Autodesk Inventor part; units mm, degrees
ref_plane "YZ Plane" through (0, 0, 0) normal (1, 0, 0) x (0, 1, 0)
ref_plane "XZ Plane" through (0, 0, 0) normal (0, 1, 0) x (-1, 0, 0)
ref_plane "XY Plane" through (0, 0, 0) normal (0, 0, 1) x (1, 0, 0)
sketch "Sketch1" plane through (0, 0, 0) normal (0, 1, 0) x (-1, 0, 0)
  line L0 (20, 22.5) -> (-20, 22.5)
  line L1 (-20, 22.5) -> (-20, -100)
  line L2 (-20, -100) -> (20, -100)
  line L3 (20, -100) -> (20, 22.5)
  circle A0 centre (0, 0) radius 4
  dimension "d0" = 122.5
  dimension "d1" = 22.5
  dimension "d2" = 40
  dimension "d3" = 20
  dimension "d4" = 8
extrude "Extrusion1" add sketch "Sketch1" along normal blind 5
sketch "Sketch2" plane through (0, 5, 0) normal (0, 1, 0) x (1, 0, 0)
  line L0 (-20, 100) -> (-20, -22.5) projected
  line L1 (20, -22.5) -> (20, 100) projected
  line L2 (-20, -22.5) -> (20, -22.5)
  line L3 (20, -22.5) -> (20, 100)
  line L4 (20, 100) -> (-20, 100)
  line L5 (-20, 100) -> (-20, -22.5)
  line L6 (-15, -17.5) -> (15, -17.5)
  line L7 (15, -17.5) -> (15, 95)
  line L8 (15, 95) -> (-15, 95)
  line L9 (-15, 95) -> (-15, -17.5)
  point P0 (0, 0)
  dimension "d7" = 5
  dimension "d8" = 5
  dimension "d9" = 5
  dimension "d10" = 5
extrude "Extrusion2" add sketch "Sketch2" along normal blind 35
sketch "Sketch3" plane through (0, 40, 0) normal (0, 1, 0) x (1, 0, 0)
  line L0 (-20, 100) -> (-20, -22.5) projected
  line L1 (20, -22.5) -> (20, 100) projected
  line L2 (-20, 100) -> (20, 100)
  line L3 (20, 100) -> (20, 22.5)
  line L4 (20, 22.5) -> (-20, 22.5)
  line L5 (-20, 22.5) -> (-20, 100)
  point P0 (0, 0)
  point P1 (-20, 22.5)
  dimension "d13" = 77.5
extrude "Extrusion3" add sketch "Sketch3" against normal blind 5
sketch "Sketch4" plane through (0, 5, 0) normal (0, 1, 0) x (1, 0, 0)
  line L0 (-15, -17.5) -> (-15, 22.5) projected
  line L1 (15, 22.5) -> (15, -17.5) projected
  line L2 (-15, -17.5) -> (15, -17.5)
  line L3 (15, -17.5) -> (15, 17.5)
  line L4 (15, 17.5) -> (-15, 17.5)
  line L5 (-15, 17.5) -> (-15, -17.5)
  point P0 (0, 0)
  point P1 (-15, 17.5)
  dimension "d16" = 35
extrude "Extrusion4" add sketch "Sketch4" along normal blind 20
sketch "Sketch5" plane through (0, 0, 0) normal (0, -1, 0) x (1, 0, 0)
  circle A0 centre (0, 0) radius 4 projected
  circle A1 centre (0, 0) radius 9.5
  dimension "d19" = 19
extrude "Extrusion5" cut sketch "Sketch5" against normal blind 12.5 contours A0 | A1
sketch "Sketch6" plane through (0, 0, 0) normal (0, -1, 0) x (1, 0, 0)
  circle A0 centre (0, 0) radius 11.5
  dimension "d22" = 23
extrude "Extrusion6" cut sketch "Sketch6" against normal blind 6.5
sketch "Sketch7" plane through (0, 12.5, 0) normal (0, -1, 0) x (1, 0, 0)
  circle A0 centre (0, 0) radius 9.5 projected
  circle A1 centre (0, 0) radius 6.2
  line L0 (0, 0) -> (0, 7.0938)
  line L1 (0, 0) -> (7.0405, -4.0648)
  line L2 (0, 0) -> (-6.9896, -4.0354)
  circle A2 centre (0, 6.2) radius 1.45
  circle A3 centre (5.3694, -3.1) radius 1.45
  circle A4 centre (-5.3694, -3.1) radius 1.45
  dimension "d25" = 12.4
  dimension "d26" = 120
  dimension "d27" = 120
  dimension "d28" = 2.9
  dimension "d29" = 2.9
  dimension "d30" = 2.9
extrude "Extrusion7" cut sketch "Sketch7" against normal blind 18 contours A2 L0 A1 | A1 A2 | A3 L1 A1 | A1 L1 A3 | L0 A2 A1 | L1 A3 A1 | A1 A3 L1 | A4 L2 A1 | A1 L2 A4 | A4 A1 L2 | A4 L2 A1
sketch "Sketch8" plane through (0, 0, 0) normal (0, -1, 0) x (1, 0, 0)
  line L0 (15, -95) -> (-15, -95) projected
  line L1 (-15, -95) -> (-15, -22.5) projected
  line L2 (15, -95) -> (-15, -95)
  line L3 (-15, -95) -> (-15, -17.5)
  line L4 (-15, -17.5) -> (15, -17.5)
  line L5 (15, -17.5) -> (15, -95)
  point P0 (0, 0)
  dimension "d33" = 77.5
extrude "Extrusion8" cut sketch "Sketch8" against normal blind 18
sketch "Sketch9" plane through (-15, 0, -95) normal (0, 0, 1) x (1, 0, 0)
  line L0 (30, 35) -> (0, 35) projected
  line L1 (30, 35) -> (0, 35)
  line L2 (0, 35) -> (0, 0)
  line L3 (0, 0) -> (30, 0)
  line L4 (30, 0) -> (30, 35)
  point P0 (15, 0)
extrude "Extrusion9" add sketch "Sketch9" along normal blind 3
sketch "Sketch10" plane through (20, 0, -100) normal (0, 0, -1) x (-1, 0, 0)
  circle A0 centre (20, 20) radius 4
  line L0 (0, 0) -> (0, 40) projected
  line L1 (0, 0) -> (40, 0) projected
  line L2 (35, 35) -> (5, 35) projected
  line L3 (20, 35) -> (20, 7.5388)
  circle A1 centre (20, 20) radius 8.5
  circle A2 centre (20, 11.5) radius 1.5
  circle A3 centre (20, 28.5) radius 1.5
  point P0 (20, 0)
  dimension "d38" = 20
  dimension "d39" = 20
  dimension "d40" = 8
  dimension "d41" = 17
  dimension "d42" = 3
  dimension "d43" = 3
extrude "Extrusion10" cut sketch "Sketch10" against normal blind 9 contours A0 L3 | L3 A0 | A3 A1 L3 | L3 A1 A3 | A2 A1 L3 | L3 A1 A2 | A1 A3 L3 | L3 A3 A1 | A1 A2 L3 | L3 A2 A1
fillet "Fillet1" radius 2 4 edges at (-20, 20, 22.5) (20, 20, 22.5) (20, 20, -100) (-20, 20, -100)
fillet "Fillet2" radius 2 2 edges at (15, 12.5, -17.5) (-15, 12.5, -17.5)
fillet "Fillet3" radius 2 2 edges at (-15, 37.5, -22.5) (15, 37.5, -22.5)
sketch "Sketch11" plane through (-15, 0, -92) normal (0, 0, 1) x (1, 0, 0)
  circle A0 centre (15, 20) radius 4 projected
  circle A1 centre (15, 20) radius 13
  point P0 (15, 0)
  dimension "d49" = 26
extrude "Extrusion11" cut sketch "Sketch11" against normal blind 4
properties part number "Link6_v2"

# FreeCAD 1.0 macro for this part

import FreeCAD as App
import Part
import Sketcher
Q = App.Units.Quantity


def edges_at(feature, points):
    """Names of the edges that pass closest to the given points."""
    edges = feature.Shape.Edges
    near = lambda p: min(range(len(edges)), key=lambda i: edges[i].distToShape(Part.Vertex(*p))[0])
    return sorted({f"Edge{near(p) + 1}" for p in points})

doc = App.newDocument("Part")
body = doc.addObject("PartDesign::Body", "Body")

# Sketch on XZ plane
sketch1 = doc.addObject("Sketcher::SketchObject", "Sketch")
body.addObject(sketch1)
sketch1.AttachmentSupport = (doc.XZ_Plane, [""])
sketch1.MapMode = "FlatFace"
sketch1.addGeometry([
    Part.LineSegment(App.Vector(-20, -100, 0), App.Vector(-20, 22.5, 0)),  # 0
    Part.LineSegment(App.Vector(-20, 22.5, 0), App.Vector(20, 22.5, 0)),  # 1
    Part.LineSegment(App.Vector(20, 22.5, 0), App.Vector(20, -100, 0)),  # 2
    Part.LineSegment(App.Vector(20, -100, 0), App.Vector(-20, -100, 0)),  # 3
    Part.Circle(App.Vector(0, 0, 0), App.Vector(0, 0, 1), 4),  # 4
], False)
sketch1.addConstraint([
    Sketcher.Constraint("Coincident", 0, 2, 1, 1),
    Sketcher.Constraint("Coincident", 1, 2, 2, 1),
    Sketcher.Constraint("Coincident", 2, 2, 3, 1),
    Sketcher.Constraint("Coincident", 3, 2, 0, 1),
    Sketcher.Constraint("Vertical", 0),
    Sketcher.Constraint("Horizontal", 1),
    Sketcher.Constraint("Vertical", 2),
    Sketcher.Constraint("Horizontal", 3),
    Sketcher.Constraint("Coincident", 4, 3, -1, 1),
    Sketcher.Constraint("Diameter", 4, Q("8 mm")),
    Sketcher.Constraint("DistanceX", 1, 1, 1, 2, Q("40 mm")),
    Sketcher.Constraint("DistanceY", 0, 1, 0, 2, Q("122.5 mm")),
    Sketcher.Constraint("DistanceX", 0, 2, -1, 1, Q("20 mm")),
    Sketcher.Constraint("DistanceY", -1, 1, 0, 2, Q("22.5 mm")),
])
pad1 = doc.addObject("PartDesign::Pad", "Pad")
body.addObject(pad1)
pad1.Profile = sketch1
pad1.Length = 5
pad1.Reversed = True

# Sketch on XZ plane
sketch2 = doc.addObject("Sketcher::SketchObject", "Sketch001")
body.addObject(sketch2)
sketch2.AttachmentSupport = (doc.XZ_Plane, [""])
sketch2.MapMode = "FlatFace"
sketch2.AttachmentOffset = App.Placement(App.Vector(0, 0, -5), App.Rotation())
sketch2.addGeometry([
    Part.LineSegment(App.Vector(20, -100, 0), App.Vector(-20, -100, 0)),  # 0
    Part.LineSegment(App.Vector(-20, -100, 0), App.Vector(-20, 22, 0)),  # 1
    Part.LineSegment(App.Vector(-20, 22, 0), App.Vector(20, 22, 0)),  # 2
    Part.LineSegment(App.Vector(20, 22, 0), App.Vector(20, -100, 0)),  # 3
    Part.LineSegment(App.Vector(15, 18, 0), App.Vector(-15, 18, 0)),  # 4
    Part.LineSegment(App.Vector(-15, 18, 0), App.Vector(-15, -95, 0)),  # 5
    Part.LineSegment(App.Vector(-15, -95, 0), App.Vector(15, -95, 0)),  # 6
    Part.LineSegment(App.Vector(15, -95, 0), App.Vector(15, 18, 0)),  # 7
], False)
sketch2.addConstraint([
    Sketcher.Constraint("Coincident", 0, 2, 1, 1),
    Sketcher.Constraint("Coincident", 1, 2, 2, 1),
    Sketcher.Constraint("Coincident", 2, 2, 3, 1),
    Sketcher.Constraint("Coincident", 3, 2, 0, 1),
    Sketcher.Constraint("Coincident", 4, 2, 5, 1),
    Sketcher.Constraint("Coincident", 5, 2, 6, 1),
    Sketcher.Constraint("Coincident", 6, 2, 7, 1),
    Sketcher.Constraint("Coincident", 7, 2, 4, 1),
    Sketcher.Constraint("Horizontal", 0),
    Sketcher.Constraint("Vertical", 1),
    Sketcher.Constraint("Horizontal", 2),
    Sketcher.Constraint("Vertical", 3),
    Sketcher.Constraint("Horizontal", 4),
    Sketcher.Constraint("Vertical", 5),
    Sketcher.Constraint("Horizontal", 6),
    Sketcher.Constraint("Vertical", 7),
    Sketcher.Constraint("DistanceX", 1, 2, 4, 2, Q("5 mm")),
    Sketcher.Constraint("DistanceY", 4, 2, 1, 2, Q("5 mm")),
    Sketcher.Constraint("DistanceY", 0, 2, 5, 2, Q("5 mm")),
    Sketcher.Constraint("DistanceX", 6, 2, 3, 2, Q("5 mm")),
    Sketcher.Constraint("DistanceX", 0, 2, 0, 1, Q("40 mm")),
    Sketcher.Constraint("DistanceY", 1, 1, 1, 2, Q("122.5 mm")),
    Sketcher.Constraint("DistanceX", 0, 2, -1, 1, Q("20 mm")),
    Sketcher.Constraint("DistanceY", 0, 2, -1, 1, Q("100 mm")),
])
pad2 = doc.addObject("PartDesign::Pad", "Pad001")
body.addObject(pad2)
pad2.Profile = sketch2
pad2.Length = 35
pad2.Reversed = True

# Sketch on XZ plane
sketch3 = doc.addObject("Sketcher::SketchObject", "Sketch002")
body.addObject(sketch3)
sketch3.AttachmentSupport = (doc.XZ_Plane, [""])
sketch3.MapMode = "FlatFace"
sketch3.AttachmentOffset = App.Placement(App.Vector(0, 0, -40), App.Rotation())
sketch3.addGeometry([
    Part.LineSegment(App.Vector(20, -100, 0), App.Vector(-20, -100, 0)),
    Part.LineSegment(App.Vector(-20, -100, 0), App.Vector(-20, -22, 0)),
    Part.LineSegment(App.Vector(-20, -22, 0), App.Vector(20, -22, 0)),
    Part.LineSegment(App.Vector(20, -22, 0), App.Vector(20, -100, 0)),
], False)
sketch3.addConstraint([
    Sketcher.Constraint("Coincident", 0, 2, 1, 1),
    Sketcher.Constraint("Coincident", 1, 2, 2, 1),
    Sketcher.Constraint("Coincident", 2, 2, 3, 1),
    Sketcher.Constraint("Coincident", 3, 2, 0, 1),
    Sketcher.Constraint("Horizontal", 0),
    Sketcher.Constraint("Vertical", 1),
    Sketcher.Constraint("Horizontal", 2),
    Sketcher.Constraint("Vertical", 3),
    Sketcher.Constraint("DistanceY", 1, 1, 1, 2, Q("77.5 mm")),
    Sketcher.Constraint("DistanceX", 0, 2, 0, 1, Q("40 mm")),
    Sketcher.Constraint("DistanceX", 0, 2, -1, 1, Q("20 mm")),
    Sketcher.Constraint("DistanceY", 0, 2, -1, 1, Q("100 mm")),
])
pad3 = doc.addObject("PartDesign::Pad", "Pad002")
body.addObject(pad3)
pad3.Profile = sketch3
pad3.Length = 5

# Sketch on XZ plane
sketch4 = doc.addObject("Sketcher::SketchObject", "Sketch003")
body.addObject(sketch4)
sketch4.AttachmentSupport = (doc.XZ_Plane, [""])
sketch4.MapMode = "FlatFace"
sketch4.AttachmentOffset = App.Placement(App.Vector(0, 0, -5), App.Rotation())
sketch4.addGeometry([
    Part.LineSegment(App.Vector(-15, -18, 0), App.Vector(-15, 18, 0)),
    Part.LineSegment(App.Vector(-15, 18, 0), App.Vector(15, 18, 0)),
    Part.LineSegment(App.Vector(15, 18, 0), App.Vector(15, -18, 0)),
    Part.LineSegment(App.Vector(15, -18, 0), App.Vector(-15, -18, 0)),
], False)
sketch4.addConstraint([
    Sketcher.Constraint("Coincident", 0, 2, 1, 1),
    Sketcher.Constraint("Coincident", 1, 2, 2, 1),
    Sketcher.Constraint("Coincident", 2, 2, 3, 1),
    Sketcher.Constraint("Coincident", 3, 2, 0, 1),
    Sketcher.Constraint("Vertical", 0),
    Sketcher.Constraint("Horizontal", 1),
    Sketcher.Constraint("Vertical", 2),
    Sketcher.Constraint("Horizontal", 3),
    Sketcher.Constraint("Symmetric", 0, 2, 2, 2, -1, 1),
    Sketcher.Constraint("DistanceY", 0, 1, 0, 2, Q("35 mm")),
    Sketcher.Constraint("DistanceX", 1, 1, 1, 2, Q("30 mm")),
])
pad4 = doc.addObject("PartDesign::Pad", "Pad003")
body.addObject(pad4)
pad4.Profile = sketch4
pad4.Length = 20
pad4.Reversed = True

# Sketch on XZ plane
sketch5 = doc.addObject("Sketcher::SketchObject", "Sketch004")
body.addObject(sketch5)
sketch5.AttachmentSupport = (doc.XZ_Plane, [""])
sketch5.MapMode = "FlatFace"
sketch5.addGeometry(Part.Circle(App.Vector(0, 0, 0), App.Vector(0, 0, 1), 10), False)
sketch5.addConstraint([
    Sketcher.Constraint("Coincident", 0, 3, -1, 1),
    Sketcher.Constraint("Diameter", 0, Q("19 mm")),
])
pocket1 = doc.addObject("PartDesign::Pocket", "Pocket")
body.addObject(pocket1)
pocket1.Profile = sketch5
pocket1.Length = 12.5

# Sketch on XZ plane
sketch6 = doc.addObject("Sketcher::SketchObject", "Sketch005")
body.addObject(sketch6)
sketch6.AttachmentSupport = (doc.XZ_Plane, [""])
sketch6.MapMode = "FlatFace"
sketch6.addGeometry(Part.Circle(App.Vector(0, 0, 0), App.Vector(0, 0, 1), 12), False)
sketch6.addConstraint([
    Sketcher.Constraint("Coincident", 0, 3, -1, 1),
    Sketcher.Constraint("Diameter", 0, Q("23 mm")),
])
pocket2 = doc.addObject("PartDesign::Pocket", "Pocket001")
body.addObject(pocket2)
pocket2.Profile = sketch6
pocket2.Length = 6.5

# Sketch on XZ plane
sketch7 = doc.addObject("Sketcher::SketchObject", "Sketch006")
body.addObject(sketch7)
sketch7.AttachmentSupport = (doc.XZ_Plane, [""])
sketch7.MapMode = "FlatFace"
sketch7.AttachmentOffset = App.Placement(App.Vector(0, 0, -12.5), App.Rotation())
sketch7.addGeometry([
    Part.Circle(App.Vector(0, 6.2, 0), App.Vector(0, 0, 1), 1.4),
    Part.Circle(App.Vector(5.4, -3.1, 0), App.Vector(0, 0, 1), 1.4),
    Part.Circle(App.Vector(-5.4, -3.1, 0), App.Vector(0, 0, 1), 1.4),
], False)
sketch7.addConstraint([
    Sketcher.Constraint("Equal", 0, 1),
    Sketcher.Constraint("Equal", 1, 2),
    Sketcher.Constraint("Symmetric", 1, 3, 2, 3, -2),
    Sketcher.Constraint("PointOnObject", 0, 3, -2),
    Sketcher.Constraint("Diameter", 0, Q("2.9 mm")),
    Sketcher.Constraint("DistanceY", -1, 1, 0, 3, Q("6.2 mm")),
    Sketcher.Constraint("DistanceY", 1, 3, -1, 1, Q("3.1 mm")),
    Sketcher.Constraint("DistanceX", -1, 1, 1, 3, Q("5.3694 mm")),
])
pocket3 = doc.addObject("PartDesign::Pocket", "Pocket002")
body.addObject(pocket3)
pocket3.Profile = sketch7
pocket3.Length = 18

# Sketch on XZ plane
sketch8 = doc.addObject("Sketcher::SketchObject", "Sketch007")
body.addObject(sketch8)
sketch8.AttachmentSupport = (doc.XZ_Plane, [""])
sketch8.MapMode = "FlatFace"
sketch8.addGeometry([
    Part.LineSegment(App.Vector(-15, -95, 0), App.Vector(15, -95, 0)),
    Part.LineSegment(App.Vector(15, -95, 0), App.Vector(15, -18, 0)),
    Part.LineSegment(App.Vector(15, -18, 0), App.Vector(-15, -18, 0)),
    Part.LineSegment(App.Vector(-15, -18, 0), App.Vector(-15, -95, 0)),
], False)
sketch8.addConstraint([
    Sketcher.Constraint("Coincident", 0, 2, 1, 1),
    Sketcher.Constraint("Coincident", 1, 2, 2, 1),
    Sketcher.Constraint("Coincident", 2, 2, 3, 1),
    Sketcher.Constraint("Coincident", 3, 2, 0, 1),
    Sketcher.Constraint("Horizontal", 0),
    Sketcher.Constraint("Vertical", 1),
    Sketcher.Constraint("Horizontal", 2),
    Sketcher.Constraint("Vertical", 3),
    Sketcher.Constraint("DistanceY", 1, 1, 1, 2, Q("77.5 mm")),
    Sketcher.Constraint("DistanceX", 0, 1, 0, 2, Q("30 mm")),
    Sketcher.Constraint("DistanceX", -1, 1, 0, 2, Q("15 mm")),
    Sketcher.Constraint("DistanceY", 0, 2, -1, 1, Q("95 mm")),
])
pocket4 = doc.addObject("PartDesign::Pocket", "Pocket003")
body.addObject(pocket4)
pocket4.Profile = sketch8
pocket4.Length = 18

# Sketch on XY plane
sketch9 = doc.addObject("Sketcher::SketchObject", "Sketch008")
body.addObject(sketch9)
sketch9.AttachmentSupport = (doc.XY_Plane, [""])
sketch9.MapMode = "FlatFace"
sketch9.AttachmentOffset = App.Placement(App.Vector(0, 0, -95), App.Rotation())
sketch9.addGeometry([
    Part.LineSegment(App.Vector(15, 0, 0), App.Vector(15, 35, 0)),
    Part.LineSegment(App.Vector(15, 35, 0), App.Vector(-15, 35, 0)),
    Part.LineSegment(App.Vector(-15, 35, 0), App.Vector(-15, 0, 0)),
    Part.LineSegment(App.Vector(-15, 0, 0), App.Vector(15, 0, 0)),
], False)
sketch9.addConstraint([
    Sketcher.Constraint("Coincident", 0, 2, 1, 1),
    Sketcher.Constraint("Coincident", 1, 2, 2, 1),
    Sketcher.Constraint("Coincident", 2, 2, 3, 1),
    Sketcher.Constraint("Coincident", 3, 2, 0, 1),
    Sketcher.Constraint("Vertical", 0),
    Sketcher.Constraint("Horizontal", 1),
    Sketcher.Constraint("Vertical", 2),
    Sketcher.Constraint("Horizontal", 3),
    Sketcher.Constraint("Symmetric", 2, 2, 3, 2, -1, 1),
    Sketcher.Constraint("DistanceX", 1, 2, 1, 1, Q("30 mm")),
    Sketcher.Constraint("DistanceY", 0, 1, 0, 2, Q("35 mm")),
])
pad5 = doc.addObject("PartDesign::Pad", "Pad004")
body.addObject(pad5)
pad5.Profile = sketch9
pad5.Length = 3

# Sketch on XY plane
sketch10 = doc.addObject("Sketcher::SketchObject", "Sketch009")
body.addObject(sketch10)
sketch10.AttachmentSupport = (doc.XY_Plane, [""])
sketch10.MapMode = "FlatFace"
sketch10.AttachmentOffset = App.Placement(App.Vector(0, 0, -100), App.Rotation())
sketch10.addGeometry([
    Part.Circle(App.Vector(0, 20, 0), App.Vector(0, 0, 1), 4),
    Part.Circle(App.Vector(0, 28.5, 0), App.Vector(0, 0, 1), 1.5),
    Part.Circle(App.Vector(0, 11.5, 0), App.Vector(0, 0, 1), 1.5),
], False)
sketch10.addConstraint([
    Sketcher.Constraint("Equal", 1, 2),
    Sketcher.Constraint("PointOnObject", 0, 3, -2),
    Sketcher.Constraint("PointOnObject", 1, 3, -2),
    Sketcher.Constraint("PointOnObject", 2, 3, -2),
    Sketcher.Constraint("Diameter", 0, Q("8 mm")),
    Sketcher.Constraint("Diameter", 1, Q("3 mm")),
    Sketcher.Constraint("DistanceY", -1, 1, 0, 3, Q("20 mm")),
    Sketcher.Constraint("DistanceY", 2, 3, 1, 3, Q("17 mm")),
    Sketcher.Constraint("DistanceY", -1, 1, 1, 3, Q("28.5 mm")),
])
pocket5 = doc.addObject("PartDesign::Pocket", "Pocket004")
body.addObject(pocket5)
pocket5.Profile = sketch10
pocket5.Length = 9
pocket5.Reversed = True
doc.recompute()

fillet = doc.addObject("PartDesign::Fillet", "Fillet")
body.addObject(fillet)
fillet.Base = (pocket5, edges_at(pocket5, [
    (-20, 20, 22.5),
    (20, 20, 22.5),
    (20, 20, -100),
    (-20, 20, -100),
]))
fillet.Radius = 2
doc.recompute()

fillet2 = doc.addObject("PartDesign::Fillet", "Fillet001")
body.addObject(fillet2)
fillet2.Base = (fillet, edges_at(fillet, [(15, 12.5, -17.5), (-15, 12.5, -17.5)]))
fillet2.Radius = 2
doc.recompute()

fillet3 = doc.addObject("PartDesign::Fillet", "Fillet002")
body.addObject(fillet3)
fillet3.Base = (fillet2, edges_at(fillet2, [(-15, 37.5, -22.5), (15, 37.5, -22.5)]))
fillet3.Radius = 2

# Sketch on XY plane
sketch11 = doc.addObject("Sketcher::SketchObject", "Sketch010")
body.addObject(sketch11)
sketch11.AttachmentSupport = (doc.XY_Plane, [""])
sketch11.MapMode = "FlatFace"
sketch11.AttachmentOffset = App.Placement(App.Vector(0, 0, -92), App.Rotation())
sketch11.addGeometry([
    Part.Circle(App.Vector(0, 20, 0), App.Vector(0, 0, 1), 13),
    Part.Circle(App.Vector(0, 20, 0), App.Vector(0, 0, 1), 4),
], False)
sketch11.addConstraint([
    Sketcher.Constraint("Coincident", 1, 3, 0, 3),
    Sketcher.Constraint("PointOnObject", 0, 3, -2),
    Sketcher.Constraint("Diameter", 0, Q("26 mm")),
    Sketcher.Constraint("Diameter", 1, Q("8 mm")),
    Sketcher.Constraint("DistanceY", -1, 1, 0, 3, Q("20 mm")),
])
pocket6 = doc.addObject("PartDesign::Pocket", "Pocket005")
body.addObject(pocket6)
pocket6.Profile = sketch11
pocket6.Length = 4

doc.recompute()
